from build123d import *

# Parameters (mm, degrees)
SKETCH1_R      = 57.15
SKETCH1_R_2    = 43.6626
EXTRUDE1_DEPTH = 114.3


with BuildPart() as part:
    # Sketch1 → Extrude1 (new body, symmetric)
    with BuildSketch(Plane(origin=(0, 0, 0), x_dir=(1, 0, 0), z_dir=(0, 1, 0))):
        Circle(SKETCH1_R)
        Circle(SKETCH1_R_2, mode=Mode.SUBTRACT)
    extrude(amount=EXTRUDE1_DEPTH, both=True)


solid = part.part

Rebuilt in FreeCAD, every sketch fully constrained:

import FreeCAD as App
import Part
import Sketcher
Q = App.Units.Quantity

doc = App.newDocument("Part")
params = doc.addObject("Spreadsheet::Sheet", "Params")
for row, (alias, value) in enumerate([
    ("sketch1_diameter", "4.5 in"),
    ("sketch1_diameter2", "3.438 in"),
    ("pad1_length", "9 in"),
], start=1):
    params.set(f"A{row}", alias)
    params.set(f"B{row}", "=" + value)
    params.setAlias(f"B{row}", alias)

body = doc.addObject("PartDesign::Body", "Body")

# Sketch on XZ plane
sketch1 = body.newObject("Sketcher::SketchObject", "Sketch")
sketch1.AttachmentSupport = (doc.getObject("XZ_Plane"), [""])
sketch1.MapMode = "FlatFace"
sketch1.addGeometry([
    Part.Circle(App.Vector(0, 0, 0), App.Vector(0, 0, 1), 57),
    Part.Circle(App.Vector(0, 0, 0), App.Vector(0, 0, 1), 44),
], False)
sketch1.addConstraint([
    Sketcher.Constraint("Coincident", 0, 3, -1, 1),
    Sketcher.Constraint("Coincident", 1, 3, -1, 1),
    Sketcher.Constraint("Diameter", 0, Q("4.5 in")),
    Sketcher.Constraint("Diameter", 1, Q("3.438 in")),
])
sketch1.setExpression("Constraints[2]", "Params.sketch1_diameter")
sketch1.setExpression("Constraints[3]", "Params.sketch1_diameter2")
pad1 = body.newObject("PartDesign::Pad", "Pad")
pad1.Profile = sketch1
pad1.setExpression("Length", "Params.pad1_length")
pad1.Midplane = True

doc.recompute()
